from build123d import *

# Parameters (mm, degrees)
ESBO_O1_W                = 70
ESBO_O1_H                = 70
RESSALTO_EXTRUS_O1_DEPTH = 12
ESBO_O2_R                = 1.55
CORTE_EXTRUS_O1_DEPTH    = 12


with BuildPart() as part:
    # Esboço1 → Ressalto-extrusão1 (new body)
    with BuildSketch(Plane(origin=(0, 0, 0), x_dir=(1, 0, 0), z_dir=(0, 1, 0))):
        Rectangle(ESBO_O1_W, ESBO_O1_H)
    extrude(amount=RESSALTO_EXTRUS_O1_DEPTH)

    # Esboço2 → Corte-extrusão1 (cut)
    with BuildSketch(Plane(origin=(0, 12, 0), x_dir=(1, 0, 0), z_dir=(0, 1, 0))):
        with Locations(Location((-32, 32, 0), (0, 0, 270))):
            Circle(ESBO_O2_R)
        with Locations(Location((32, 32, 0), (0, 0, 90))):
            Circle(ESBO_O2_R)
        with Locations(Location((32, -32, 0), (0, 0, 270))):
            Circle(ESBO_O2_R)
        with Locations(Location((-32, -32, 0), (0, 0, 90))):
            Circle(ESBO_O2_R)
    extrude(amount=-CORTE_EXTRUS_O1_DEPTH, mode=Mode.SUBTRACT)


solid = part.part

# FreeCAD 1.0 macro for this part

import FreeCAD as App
import Part
import Sketcher

V = App.Vector


def add_polygon(sketch, points):
    """Adds a closed chain of lines whose ends are joined by coincident constraints."""
    first, n = sketch.GeometryCount, len(points)
    for a, b in zip(points, points[1:] + points[:1]):
        sketch.addGeometry(Part.LineSegment(App.Vector(*a, 0), App.Vector(*b, 0)), False)
    for i in range(n):
        sketch.addConstraint(Sketcher.Constraint("Coincident", first + i, 2, first + (i + 1) % n, 1))

doc = App.newDocument("Part")
params = doc.addObject("Spreadsheet::Sheet", "Params")
for row, (alias, value) in enumerate([
    ("sketch1_width", "70 mm"),
    ("pad1_length", "12 mm"),
    ("sketch2_diameter", "3.1 mm"),
    ("pocket1_length", "12 mm"),
], start=1):
    params.set(f"A{row}", alias)
    params.set(f"B{row}", "=" + value)
    params.setAlias(f"B{row}", alias)

body = doc.addObject("PartDesign::Body", "Body")

sketch1 = body.newObject("Sketcher::SketchObject", "Sketch")
sketch1.AttachmentSupport = (doc.getObject("XZ_Plane"), [""])
sketch1.MapMode = "FlatFace"
add_polygon(sketch1, [(-35, -35), (-35, 35), (35, 35), (35, -35)])
sketch1.addConstraint(Sketcher.Constraint("Vertical", 0))
sketch1.addConstraint(Sketcher.Constraint("Horizontal", 1))
sketch1.addConstraint(Sketcher.Constraint("Vertical", 2))
sketch1.addConstraint(Sketcher.Constraint("Horizontal", 3))
sketch1.addConstraint(Sketcher.Constraint("Symmetric", 0, 2, 2, 2, -1, 1))
sketch1.addConstraint(Sketcher.Constraint("Equal", 3, 0))
sketch1.addConstraint(Sketcher.Constraint("DistanceX", 1, 1, 1, 2, 70.0))
sketch1.setExpression("Constraints[10]", "Params.sketch1_width")
pad1 = body.newObject("PartDesign::Pad", "Pad")
pad1.Profile = sketch1
pad1.setExpression("Length", "Params.pad1_length")
pad1.Reversed = True

sketch2 = body.newObject("Sketcher::SketchObject", "Sketch001")
sketch2.AttachmentSupport = (doc.getObject("XZ_Plane"), [""])
sketch2.MapMode = "FlatFace"
sketch2.AttachmentOffset = App.Placement(V(0, 0, -12), App.Rotation())
sketch2.addGeometry(Part.Circle(V(-32, -32, 0), V(0, 0, 1), 1.6), False)
sketch2.addGeometry(Part.Circle(V(32, -32, 0), V(0, 0, 1), 1.6), False)
sketch2.addGeometry(Part.Circle(V(32, 32, 0), V(0, 0, 1), 1.6), False)
sketch2.addGeometry(Part.Circle(V(-32, 32, 0), V(0, 0, 1), 1.6), False)
sketch2.addConstraint(Sketcher.Constraint("Equal", 0, 1))
sketch2.addConstraint(Sketcher.Constraint("Equal", 1, 2))
sketch2.addConstraint(Sketcher.Constraint("Equal", 2, 3))
sketch2.addConstraint(Sketcher.Constraint("Symmetric", 0, 3, 2, 3, -1, 1))
sketch2.addConstraint(Sketcher.Constraint("Symmetric", 1, 3, 3, 3, -1, 1))
sketch2.addConstraint(Sketcher.Constraint("Symmetric", 0, 3, 1, 3, -2))
sketch2.addConstraint(Sketcher.Constraint("Diameter", 0, 3.1))
sketch2.addConstraint(Sketcher.Constraint("DistanceX", 0, 3, -1, 1, 32.0))
sketch2.addConstraint(Sketcher.Constraint("DistanceY", 0, 3, -1, 1, 32.0))
sketch2.setExpression("Constraints[6]", "Params.sketch2_diameter")
pocket1 = body.newObject("PartDesign::Pocket", "Pocket")
pocket1.Profile = sketch2
pocket1.setExpression("Length", "Params.pocket1_length")
pocket1.Reversed = True

doc.recompute()
